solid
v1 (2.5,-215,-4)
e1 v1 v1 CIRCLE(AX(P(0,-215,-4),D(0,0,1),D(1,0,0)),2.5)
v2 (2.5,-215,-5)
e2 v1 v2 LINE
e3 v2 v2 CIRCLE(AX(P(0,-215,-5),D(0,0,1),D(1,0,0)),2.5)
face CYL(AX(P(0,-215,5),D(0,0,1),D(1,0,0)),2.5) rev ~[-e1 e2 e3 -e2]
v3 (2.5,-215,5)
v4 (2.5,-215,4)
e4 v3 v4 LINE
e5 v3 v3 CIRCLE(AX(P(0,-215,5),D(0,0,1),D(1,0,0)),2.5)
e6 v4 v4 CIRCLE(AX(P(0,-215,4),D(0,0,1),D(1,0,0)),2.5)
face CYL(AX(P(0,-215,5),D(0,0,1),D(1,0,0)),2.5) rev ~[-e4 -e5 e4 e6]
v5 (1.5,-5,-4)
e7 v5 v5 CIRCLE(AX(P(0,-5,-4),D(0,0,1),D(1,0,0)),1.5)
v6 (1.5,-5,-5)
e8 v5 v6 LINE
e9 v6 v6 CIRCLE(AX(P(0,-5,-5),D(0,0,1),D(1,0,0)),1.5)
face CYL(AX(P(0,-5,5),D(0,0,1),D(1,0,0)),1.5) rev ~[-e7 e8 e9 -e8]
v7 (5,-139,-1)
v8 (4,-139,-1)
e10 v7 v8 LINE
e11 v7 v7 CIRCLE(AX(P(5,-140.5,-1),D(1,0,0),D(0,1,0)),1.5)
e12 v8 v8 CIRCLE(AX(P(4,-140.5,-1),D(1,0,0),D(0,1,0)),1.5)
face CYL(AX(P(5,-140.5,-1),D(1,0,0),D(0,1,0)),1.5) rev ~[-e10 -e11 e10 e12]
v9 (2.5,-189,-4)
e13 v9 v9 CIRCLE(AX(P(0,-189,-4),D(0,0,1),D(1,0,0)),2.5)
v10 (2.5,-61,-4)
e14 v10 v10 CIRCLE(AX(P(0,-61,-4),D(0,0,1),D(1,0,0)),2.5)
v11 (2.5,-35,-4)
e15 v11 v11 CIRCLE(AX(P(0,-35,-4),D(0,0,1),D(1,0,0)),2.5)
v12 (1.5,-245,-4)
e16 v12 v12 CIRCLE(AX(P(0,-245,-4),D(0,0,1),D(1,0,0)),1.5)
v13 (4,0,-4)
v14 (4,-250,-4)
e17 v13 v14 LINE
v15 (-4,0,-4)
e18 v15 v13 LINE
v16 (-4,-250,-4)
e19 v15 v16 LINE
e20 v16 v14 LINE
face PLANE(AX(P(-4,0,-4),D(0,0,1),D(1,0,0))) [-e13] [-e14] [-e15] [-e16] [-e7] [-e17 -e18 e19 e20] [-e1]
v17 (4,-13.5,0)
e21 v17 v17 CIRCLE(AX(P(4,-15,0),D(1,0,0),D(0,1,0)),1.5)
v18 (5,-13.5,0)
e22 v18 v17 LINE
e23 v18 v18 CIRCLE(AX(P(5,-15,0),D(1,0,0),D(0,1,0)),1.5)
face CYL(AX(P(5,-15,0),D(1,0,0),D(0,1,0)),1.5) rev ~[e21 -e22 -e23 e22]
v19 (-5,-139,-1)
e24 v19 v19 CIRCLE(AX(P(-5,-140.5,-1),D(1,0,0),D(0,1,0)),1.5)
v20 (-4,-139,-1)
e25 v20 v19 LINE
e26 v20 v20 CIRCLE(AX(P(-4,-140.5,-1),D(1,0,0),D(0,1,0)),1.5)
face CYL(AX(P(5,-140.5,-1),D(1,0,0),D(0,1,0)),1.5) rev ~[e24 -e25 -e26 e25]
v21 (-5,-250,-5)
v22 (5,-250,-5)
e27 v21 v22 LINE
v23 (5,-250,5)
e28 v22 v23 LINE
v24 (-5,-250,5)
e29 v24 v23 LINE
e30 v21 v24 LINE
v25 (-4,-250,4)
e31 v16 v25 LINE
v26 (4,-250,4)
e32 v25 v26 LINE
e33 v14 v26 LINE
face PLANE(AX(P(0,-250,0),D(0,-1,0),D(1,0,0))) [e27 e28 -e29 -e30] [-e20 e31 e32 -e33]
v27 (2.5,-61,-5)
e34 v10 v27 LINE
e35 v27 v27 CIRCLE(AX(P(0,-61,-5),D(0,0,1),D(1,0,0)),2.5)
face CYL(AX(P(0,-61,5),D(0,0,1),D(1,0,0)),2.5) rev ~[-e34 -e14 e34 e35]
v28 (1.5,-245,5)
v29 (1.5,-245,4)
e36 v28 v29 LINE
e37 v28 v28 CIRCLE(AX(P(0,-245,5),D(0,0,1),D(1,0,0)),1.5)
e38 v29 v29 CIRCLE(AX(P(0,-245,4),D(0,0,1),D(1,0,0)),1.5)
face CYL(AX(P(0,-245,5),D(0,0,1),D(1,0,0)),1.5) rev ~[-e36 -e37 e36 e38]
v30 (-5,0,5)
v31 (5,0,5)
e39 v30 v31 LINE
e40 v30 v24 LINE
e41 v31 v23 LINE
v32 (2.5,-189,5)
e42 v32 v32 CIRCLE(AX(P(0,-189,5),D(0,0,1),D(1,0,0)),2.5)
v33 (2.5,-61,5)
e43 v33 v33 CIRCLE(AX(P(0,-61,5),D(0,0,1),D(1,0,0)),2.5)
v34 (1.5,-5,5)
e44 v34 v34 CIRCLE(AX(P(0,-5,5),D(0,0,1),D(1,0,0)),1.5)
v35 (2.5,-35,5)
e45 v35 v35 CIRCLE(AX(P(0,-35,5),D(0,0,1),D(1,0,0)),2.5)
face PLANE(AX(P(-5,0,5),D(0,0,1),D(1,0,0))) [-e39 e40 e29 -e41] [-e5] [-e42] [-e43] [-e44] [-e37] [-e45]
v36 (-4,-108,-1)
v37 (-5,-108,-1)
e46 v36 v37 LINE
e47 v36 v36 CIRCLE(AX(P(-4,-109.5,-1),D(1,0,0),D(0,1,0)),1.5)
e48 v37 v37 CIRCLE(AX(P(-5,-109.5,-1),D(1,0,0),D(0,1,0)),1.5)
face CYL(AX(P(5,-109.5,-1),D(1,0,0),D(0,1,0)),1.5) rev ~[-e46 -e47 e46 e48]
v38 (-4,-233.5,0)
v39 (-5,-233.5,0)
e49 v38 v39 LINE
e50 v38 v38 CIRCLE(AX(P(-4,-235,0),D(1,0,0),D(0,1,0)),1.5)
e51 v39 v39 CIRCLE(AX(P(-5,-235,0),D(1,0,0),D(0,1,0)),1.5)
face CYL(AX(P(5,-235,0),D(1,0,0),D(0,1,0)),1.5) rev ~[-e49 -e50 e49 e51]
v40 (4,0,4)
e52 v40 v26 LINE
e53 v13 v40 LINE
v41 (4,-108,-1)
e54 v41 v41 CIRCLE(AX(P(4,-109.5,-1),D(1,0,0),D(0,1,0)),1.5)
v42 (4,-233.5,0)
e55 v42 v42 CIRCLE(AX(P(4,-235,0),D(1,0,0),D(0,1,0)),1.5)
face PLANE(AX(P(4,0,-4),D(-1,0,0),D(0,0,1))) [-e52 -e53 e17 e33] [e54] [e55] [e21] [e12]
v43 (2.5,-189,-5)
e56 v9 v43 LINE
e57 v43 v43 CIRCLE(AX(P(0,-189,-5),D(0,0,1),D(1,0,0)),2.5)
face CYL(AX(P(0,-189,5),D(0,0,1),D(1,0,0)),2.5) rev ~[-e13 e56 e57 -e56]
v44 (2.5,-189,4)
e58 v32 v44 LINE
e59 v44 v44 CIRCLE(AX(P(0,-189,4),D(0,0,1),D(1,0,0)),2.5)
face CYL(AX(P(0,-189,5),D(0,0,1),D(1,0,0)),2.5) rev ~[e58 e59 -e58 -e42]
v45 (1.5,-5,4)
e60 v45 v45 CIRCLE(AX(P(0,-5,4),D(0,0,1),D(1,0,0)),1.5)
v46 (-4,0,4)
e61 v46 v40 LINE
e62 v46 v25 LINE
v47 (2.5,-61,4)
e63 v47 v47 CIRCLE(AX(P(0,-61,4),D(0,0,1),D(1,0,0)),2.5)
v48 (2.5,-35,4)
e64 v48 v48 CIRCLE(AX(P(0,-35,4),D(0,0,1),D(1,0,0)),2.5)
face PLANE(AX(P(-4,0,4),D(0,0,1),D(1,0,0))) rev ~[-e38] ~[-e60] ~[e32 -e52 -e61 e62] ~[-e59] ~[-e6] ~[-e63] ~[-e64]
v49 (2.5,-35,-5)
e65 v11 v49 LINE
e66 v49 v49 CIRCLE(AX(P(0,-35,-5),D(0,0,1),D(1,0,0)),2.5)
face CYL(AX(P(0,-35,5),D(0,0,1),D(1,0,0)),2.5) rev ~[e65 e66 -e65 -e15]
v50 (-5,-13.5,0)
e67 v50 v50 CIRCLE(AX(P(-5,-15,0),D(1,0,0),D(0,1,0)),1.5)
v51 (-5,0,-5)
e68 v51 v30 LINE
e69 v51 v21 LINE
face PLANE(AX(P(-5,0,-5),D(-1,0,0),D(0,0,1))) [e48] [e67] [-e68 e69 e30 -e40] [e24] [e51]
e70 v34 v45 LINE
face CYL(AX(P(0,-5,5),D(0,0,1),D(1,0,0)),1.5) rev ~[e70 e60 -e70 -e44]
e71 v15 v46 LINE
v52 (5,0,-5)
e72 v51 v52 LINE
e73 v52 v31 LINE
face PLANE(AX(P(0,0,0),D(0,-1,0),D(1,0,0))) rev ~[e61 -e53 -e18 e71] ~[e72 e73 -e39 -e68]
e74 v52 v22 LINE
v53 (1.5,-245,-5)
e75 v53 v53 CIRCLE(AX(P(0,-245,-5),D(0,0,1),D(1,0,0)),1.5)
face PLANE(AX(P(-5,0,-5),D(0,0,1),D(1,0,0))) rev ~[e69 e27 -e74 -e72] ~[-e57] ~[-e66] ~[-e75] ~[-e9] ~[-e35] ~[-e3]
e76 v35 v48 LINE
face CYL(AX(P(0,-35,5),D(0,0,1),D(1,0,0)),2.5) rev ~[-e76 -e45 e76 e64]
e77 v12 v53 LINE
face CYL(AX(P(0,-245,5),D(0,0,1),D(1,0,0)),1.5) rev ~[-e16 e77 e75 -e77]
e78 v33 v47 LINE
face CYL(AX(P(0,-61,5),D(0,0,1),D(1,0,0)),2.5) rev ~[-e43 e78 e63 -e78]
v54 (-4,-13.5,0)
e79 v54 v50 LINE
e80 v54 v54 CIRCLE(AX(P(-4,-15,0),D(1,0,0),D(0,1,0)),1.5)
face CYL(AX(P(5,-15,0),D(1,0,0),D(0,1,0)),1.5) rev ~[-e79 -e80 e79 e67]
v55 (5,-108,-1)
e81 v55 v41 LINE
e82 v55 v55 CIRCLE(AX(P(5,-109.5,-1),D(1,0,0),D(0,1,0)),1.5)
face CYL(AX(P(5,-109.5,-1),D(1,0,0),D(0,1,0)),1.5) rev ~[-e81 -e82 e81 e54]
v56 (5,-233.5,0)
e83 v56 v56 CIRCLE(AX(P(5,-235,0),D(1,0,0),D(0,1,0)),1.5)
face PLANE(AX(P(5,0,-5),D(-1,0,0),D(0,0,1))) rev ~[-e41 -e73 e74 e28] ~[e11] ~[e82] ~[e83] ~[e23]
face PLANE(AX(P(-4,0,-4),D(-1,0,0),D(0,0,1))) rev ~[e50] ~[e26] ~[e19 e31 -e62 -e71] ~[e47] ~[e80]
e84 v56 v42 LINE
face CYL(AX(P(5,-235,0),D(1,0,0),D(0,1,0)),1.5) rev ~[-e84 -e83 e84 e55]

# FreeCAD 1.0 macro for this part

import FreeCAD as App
import Part
import Sketcher
from FreeCAD import Vector
Q = App.Units.Quantity

doc = App.newDocument("Part")
params = doc.addObject("Spreadsheet::Sheet", "Params")
for row, (alias, value) in enumerate([
    ("sketch1_width", "10 mm"),
    ("sketch1_width2", "8 mm"),
    ("pad1_length", "250 mm"),
    ("sketch2_diameter", "3 mm"),
    ("pocket1_length", "25 mm"),
    ("sketch3_diameter", "3 mm"),
    ("sketch3_diameter2", "5 mm"),
    ("pocket2_length", "25 mm"),
], start=1):
    params.set(f"A{row}", alias)
    params.set(f"B{row}", "=" + value)
    params.setAlias(f"B{row}", alias)

body = doc.addObject("PartDesign::Body", "Body")

# Sketch on XZ plane
sketch1 = body.newObject("Sketcher::SketchObject", "Sketch")
sketch1.AttachmentSupport = (doc.getObject("XZ_Plane"), [""])
sketch1.MapMode = "FlatFace"
sketch1.addGeometry([
    Part.LineSegment(Vector(-5, 5, 0), Vector(-5, -5, 0)),  # 0
    Part.LineSegment(Vector(-5, -5, 0), Vector(5, -5, 0)),  # 1
    Part.LineSegment(Vector(5, -5, 0), Vector(5, 5, 0)),  # 2
    Part.LineSegment(Vector(5, 5, 0), Vector(-5, 5, 0)),  # 3
    Part.LineSegment(Vector(4, -4, 0), Vector(-4, -4, 0)),  # 4
    Part.LineSegment(Vector(-4, -4, 0), Vector(-4, 4, 0)),  # 5
    Part.LineSegment(Vector(-4, 4, 0), Vector(4, 4, 0)),  # 6
    Part.LineSegment(Vector(4, 4, 0), Vector(4, -4, 0)),  # 7
], False)
sketch1.addConstraint([
    Sketcher.Constraint("Coincident", 0, 2, 1, 1),
    Sketcher.Constraint("Coincident", 1, 2, 2, 1),
    Sketcher.Constraint("Coincident", 2, 2, 3, 1),
    Sketcher.Constraint("Coincident", 3, 2, 0, 1),
    Sketcher.Constraint("Coincident", 4, 2, 5, 1),
    Sketcher.Constraint("Coincident", 5, 2, 6, 1),
    Sketcher.Constraint("Coincident", 6, 2, 7, 1),
    Sketcher.Constraint("Coincident", 7, 2, 4, 1),
    Sketcher.Constraint("Vertical", 0),
    Sketcher.Constraint("Horizontal", 1),
    Sketcher.Constraint("Vertical", 2),
    Sketcher.Constraint("Horizontal", 3),
    Sketcher.Constraint("Horizontal", 4),
    Sketcher.Constraint("Vertical", 5),
    Sketcher.Constraint("Horizontal", 6),
    Sketcher.Constraint("Vertical", 7),
    Sketcher.Constraint("Symmetric", 0, 2, 2, 2, -1, 1),
    Sketcher.Constraint("Symmetric", 4, 2, 6, 2, -1, 1),
    Sketcher.Constraint("Equal", 3, 0),
    Sketcher.Constraint("Equal", 6, 5),
    Sketcher.Constraint("DistanceX", 1, 1, 1, 2, Q("10 mm")),
    Sketcher.Constraint("DistanceX", 4, 2, 4, 1, Q("8 mm")),
])
sketch1.setExpression("Constraints[20]", "Params.sketch1_width")
sketch1.setExpression("Constraints[21]", "Params.sketch1_width2")
pad1 = body.newObject("PartDesign::Pad", "Pad")
pad1.Profile = sketch1
pad1.setExpression("Length", "Params.pad1_length")

# Sketch on YZ plane
sketch2 = body.newObject("Sketcher::SketchObject", "Sketch001")
sketch2.AttachmentSupport = (doc.getObject("YZ_Plane"), [""])
sketch2.MapMode = "FlatFace"
sketch2.AttachmentOffset = App.Placement(Vector(0, 0, 5), App.Rotation())
sketch2.addGeometry([
    Part.Circle(Vector(-140.5, -1, 0), Vector(0, 0, 1), 1.5),
    Part.Circle(Vector(-109.5, -1, 0), Vector(0, 0, 1), 1.5),
    Part.Circle(Vector(-235, 0, 0), Vector(0, 0, 1), 1.5),
    Part.Circle(Vector(-15, 0, 0), Vector(0, 0, 1), 1.5),
], False)
sketch2.addConstraint([
    Sketcher.Constraint("Equal", 0, 1),
    Sketcher.Constraint("Equal", 1, 2),
    Sketcher.Constraint("Equal", 2, 3),
    Sketcher.Constraint("PointOnObject", 2, 3, -1),
    Sketcher.Constraint("PointOnObject", 3, 3, -1),
    Sketcher.Constraint("Horizontal", 0, 3, 1, 3),
    Sketcher.Constraint("Diameter", 0, Q("3 mm")),
    Sketcher.Constraint("DistanceY", 0, 3, -1, 1, Q("1 mm")),
    Sketcher.Constraint("DistanceX", 2, 3, -1, 1, Q("235 mm")),
    Sketcher.Constraint("DistanceX", 3, 3, -1, 1, Q("15 mm")),
    Sketcher.Constraint("DistanceX", 0, 3, 1, 3, Q("31 mm")),
    Sketcher.Constraint("DistanceX", 0, 3, -1, 1, Q("140.5 mm")),
])
sketch2.setExpression("Constraints[6]", "Params.sketch2_diameter")
pocket1 = body.newObject("PartDesign::Pocket", "Pocket")
pocket1.Profile = sketch2
pocket1.setExpression("Length", "Params.pocket1_length")

# Sketch on XY plane
sketch3 = body.newObject("Sketcher::SketchObject", "Sketch002")
sketch3.AttachmentSupport = (doc.getObject("XY_Plane"), [""])
sketch3.MapMode = "FlatFace"
sketch3.AttachmentOffset = App.Placement(Vector(0, 0, 5), App.Rotation())
sketch3.addGeometry([
    Part.Circle(Vector(0, -245, 0), Vector(0, 0, 1), 1.5),  # 0
    Part.Circle(Vector(0, -5, 0), Vector(0, 0, 1), 1.5),  # 1
    Part.Circle(Vector(0, -215, 0), Vector(0, 0, 1), 2.5),  # 2
    Part.Circle(Vector(0, -189, 0), Vector(0, 0, 1), 2.5),  # 3
    Part.Circle(Vector(0, -61, 0), Vector(0, 0, 1), 2.5),  # 4
    Part.Circle(Vector(0, -35, 0), Vector(0, 0, 1), 2.5),  # 5
], False)
sketch3.addConstraint([
    Sketcher.Constraint("Equal", 0, 1),
    Sketcher.Constraint("Equal", 2, 3),
    Sketcher.Constraint("Equal", 3, 4),
    Sketcher.Constraint("Equal", 4, 5),
    Sketcher.Constraint("PointOnObject", 0, 3, -2),
    Sketcher.Constraint("PointOnObject", 1, 3, -2),
    Sketcher.Constraint("PointOnObject", 2, 3, -2),
    Sketcher.Constraint("PointOnObject", 3, 3, -2),
    Sketcher.Constraint("PointOnObject", 4, 3, -2),
    Sketcher.Constraint("PointOnObject", 5, 3, -2),
    Sketcher.Constraint("Diameter", 0, Q("3 mm")),
    Sketcher.Constraint("Diameter", 2, Q("5 mm")),
    Sketcher.Constraint("DistanceY", 0, 3, -1, 1, Q("245 mm")),
    Sketcher.Constraint("DistanceY", 1, 3, -1, 1, Q("5 mm")),
    Sketcher.Constraint("DistanceY", 2, 3, -1, 1, Q("215 mm")),
    Sketcher.Constraint("DistanceY", 3, 3, -1, 1, Q("189 mm")),
    Sketcher.Constraint("DistanceY", 4, 3, -1, 1, Q("61 mm")),
    Sketcher.Constraint("DistanceY", 5, 3, -1, 1, Q("35 mm")),
])
sketch3.setExpression("Constraints[10]", "Params.sketch3_diameter")
sketch3.setExpression("Constraints[11]", "Params.sketch3_diameter2")
pocket2 = body.newObject("PartDesign::Pocket", "Pocket001")
pocket2.Profile = sketch3
pocket2.setExpression("Length", "Params.pocket2_length")

doc.recompute()
